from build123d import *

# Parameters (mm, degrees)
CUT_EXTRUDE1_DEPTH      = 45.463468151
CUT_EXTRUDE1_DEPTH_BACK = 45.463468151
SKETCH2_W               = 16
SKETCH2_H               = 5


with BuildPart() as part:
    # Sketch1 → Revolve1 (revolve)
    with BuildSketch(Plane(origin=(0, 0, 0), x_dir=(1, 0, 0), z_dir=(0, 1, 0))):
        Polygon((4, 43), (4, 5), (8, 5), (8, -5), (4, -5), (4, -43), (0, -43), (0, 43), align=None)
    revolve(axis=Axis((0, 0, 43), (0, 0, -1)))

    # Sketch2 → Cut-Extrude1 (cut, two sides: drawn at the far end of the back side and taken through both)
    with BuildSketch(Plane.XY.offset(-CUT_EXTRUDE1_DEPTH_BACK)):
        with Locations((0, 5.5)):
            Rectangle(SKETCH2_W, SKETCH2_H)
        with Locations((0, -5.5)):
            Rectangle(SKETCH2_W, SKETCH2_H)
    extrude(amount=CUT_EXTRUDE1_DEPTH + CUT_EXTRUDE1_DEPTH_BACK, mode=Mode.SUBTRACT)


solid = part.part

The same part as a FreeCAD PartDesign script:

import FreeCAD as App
import Part
import Sketcher
from FreeCAD import Vector
Q = App.Units.Quantity


def add_polygon(sketch, points):
    """Adds a closed chain of lines whose ends are joined by coincident constraints."""
    first, n = sketch.GeometryCount, len(points)
    for a, b in zip(points, points[1:] + points[:1]):
        sketch.addGeometry(Part.LineSegment(App.Vector(*a, 0), App.Vector(*b, 0)), False)
    for i in range(n):
        sketch.addConstraint(Sketcher.Constraint("Coincident", first + i, 2, first + (i + 1) % n, 1))

doc = App.newDocument("Part")
body = doc.addObject("PartDesign::Body", "Body")

# Sketch on XZ plane
sketch1 = doc.addObject("Sketcher::SketchObject", "Sketch")
body.addObject(sketch1)
sketch1.AttachmentSupport = (doc.XZ_Plane, [""])
sketch1.MapMode = "FlatFace"
add_polygon(sketch1, [(4, -5), (4, -43), (0, -43), (0, 43), (4, 43), (4, 5), (8, 5), (8, -5)])  # lines 0-7
sketch1.addConstraint([
    Sketcher.Constraint("Vertical", 0),
    Sketcher.Constraint("Horizontal", 1),
    Sketcher.Constraint("Vertical", 2),
    Sketcher.Constraint("Horizontal", 3),
    Sketcher.Constraint("Vertical", 4),
    Sketcher.Constraint("Horizontal", 5),
    Sketcher.Constraint("Vertical", 6),
    Sketcher.Constraint("Horizontal", 7),
    Sketcher.Constraint("Symmetric", 1, 2, 2, 2, -1, 1),
    Sketcher.Constraint("Symmetric", 4, 2, 7, 2, -1),
    Sketcher.Constraint("Equal", 3, 5),
    Sketcher.Constraint("DistanceX", 1, 2, 1, 1, Q("4 mm")),
    Sketcher.Constraint("DistanceY", 0, 2, 0, 1, Q("38 mm")),
    Sketcher.Constraint("DistanceY", 2, 1, 2, 2, Q("86 mm")),
])
revolution = doc.addObject("PartDesign::Revolution", "Revolution")
body.addObject(revolution)
revolution.Profile = sketch1
revolution.ReferenceAxis = (sketch1, ["V_Axis"])
revolution.Angle = 360

# Sketch on XY plane
sketch2 = doc.addObject("Sketcher::SketchObject", "Sketch001")
body.addObject(sketch2)
sketch2.AttachmentSupport = (doc.XY_Plane, [""])
sketch2.MapMode = "FlatFace"
add_polygon(sketch2, [(-8, 8), (-8, 3), (8, 3), (8, 8)])  # lines 0-3
add_polygon(sketch2, [(-8, -3), (-8, -8), (8, -8), (8, -3)])  # lines 4-7
sketch2.addConstraint([
    Sketcher.Constraint("Vertical", 0),
    Sketcher.Constraint("Horizontal", 1),
    Sketcher.Constraint("Vertical", 2),
    Sketcher.Constraint("Horizontal", 3),
    Sketcher.Constraint("Vertical", 4),
    Sketcher.Constraint("Horizontal", 5),
    Sketcher.Constraint("Vertical", 6),
    Sketcher.Constraint("Horizontal", 7),
    Sketcher.Constraint("Symmetric", 2, 2, 4, 2, -1, 1),
    Sketcher.Constraint("Symmetric", 0, 2, 6, 2, -1, 1),
    Sketcher.Constraint("Vertical", 3, 2, 4, 2),
    Sketcher.Constraint("DistanceX", 1, 1, 1, 2, Q("16 mm")),
    Sketcher.Constraint("DistanceY", 0, 2, 0, 1, Q("5 mm")),
    Sketcher.Constraint("DistanceY", -1, 1, 0, 2, Q("3 mm")),
])
pocket1 = doc.addObject("PartDesign::Pocket", "Pocket")
body.addObject(pocket1)
pocket1.Profile = sketch2
pocket1.Type = "ThroughAll"
pocket1.Midplane = True

doc.recompute()
